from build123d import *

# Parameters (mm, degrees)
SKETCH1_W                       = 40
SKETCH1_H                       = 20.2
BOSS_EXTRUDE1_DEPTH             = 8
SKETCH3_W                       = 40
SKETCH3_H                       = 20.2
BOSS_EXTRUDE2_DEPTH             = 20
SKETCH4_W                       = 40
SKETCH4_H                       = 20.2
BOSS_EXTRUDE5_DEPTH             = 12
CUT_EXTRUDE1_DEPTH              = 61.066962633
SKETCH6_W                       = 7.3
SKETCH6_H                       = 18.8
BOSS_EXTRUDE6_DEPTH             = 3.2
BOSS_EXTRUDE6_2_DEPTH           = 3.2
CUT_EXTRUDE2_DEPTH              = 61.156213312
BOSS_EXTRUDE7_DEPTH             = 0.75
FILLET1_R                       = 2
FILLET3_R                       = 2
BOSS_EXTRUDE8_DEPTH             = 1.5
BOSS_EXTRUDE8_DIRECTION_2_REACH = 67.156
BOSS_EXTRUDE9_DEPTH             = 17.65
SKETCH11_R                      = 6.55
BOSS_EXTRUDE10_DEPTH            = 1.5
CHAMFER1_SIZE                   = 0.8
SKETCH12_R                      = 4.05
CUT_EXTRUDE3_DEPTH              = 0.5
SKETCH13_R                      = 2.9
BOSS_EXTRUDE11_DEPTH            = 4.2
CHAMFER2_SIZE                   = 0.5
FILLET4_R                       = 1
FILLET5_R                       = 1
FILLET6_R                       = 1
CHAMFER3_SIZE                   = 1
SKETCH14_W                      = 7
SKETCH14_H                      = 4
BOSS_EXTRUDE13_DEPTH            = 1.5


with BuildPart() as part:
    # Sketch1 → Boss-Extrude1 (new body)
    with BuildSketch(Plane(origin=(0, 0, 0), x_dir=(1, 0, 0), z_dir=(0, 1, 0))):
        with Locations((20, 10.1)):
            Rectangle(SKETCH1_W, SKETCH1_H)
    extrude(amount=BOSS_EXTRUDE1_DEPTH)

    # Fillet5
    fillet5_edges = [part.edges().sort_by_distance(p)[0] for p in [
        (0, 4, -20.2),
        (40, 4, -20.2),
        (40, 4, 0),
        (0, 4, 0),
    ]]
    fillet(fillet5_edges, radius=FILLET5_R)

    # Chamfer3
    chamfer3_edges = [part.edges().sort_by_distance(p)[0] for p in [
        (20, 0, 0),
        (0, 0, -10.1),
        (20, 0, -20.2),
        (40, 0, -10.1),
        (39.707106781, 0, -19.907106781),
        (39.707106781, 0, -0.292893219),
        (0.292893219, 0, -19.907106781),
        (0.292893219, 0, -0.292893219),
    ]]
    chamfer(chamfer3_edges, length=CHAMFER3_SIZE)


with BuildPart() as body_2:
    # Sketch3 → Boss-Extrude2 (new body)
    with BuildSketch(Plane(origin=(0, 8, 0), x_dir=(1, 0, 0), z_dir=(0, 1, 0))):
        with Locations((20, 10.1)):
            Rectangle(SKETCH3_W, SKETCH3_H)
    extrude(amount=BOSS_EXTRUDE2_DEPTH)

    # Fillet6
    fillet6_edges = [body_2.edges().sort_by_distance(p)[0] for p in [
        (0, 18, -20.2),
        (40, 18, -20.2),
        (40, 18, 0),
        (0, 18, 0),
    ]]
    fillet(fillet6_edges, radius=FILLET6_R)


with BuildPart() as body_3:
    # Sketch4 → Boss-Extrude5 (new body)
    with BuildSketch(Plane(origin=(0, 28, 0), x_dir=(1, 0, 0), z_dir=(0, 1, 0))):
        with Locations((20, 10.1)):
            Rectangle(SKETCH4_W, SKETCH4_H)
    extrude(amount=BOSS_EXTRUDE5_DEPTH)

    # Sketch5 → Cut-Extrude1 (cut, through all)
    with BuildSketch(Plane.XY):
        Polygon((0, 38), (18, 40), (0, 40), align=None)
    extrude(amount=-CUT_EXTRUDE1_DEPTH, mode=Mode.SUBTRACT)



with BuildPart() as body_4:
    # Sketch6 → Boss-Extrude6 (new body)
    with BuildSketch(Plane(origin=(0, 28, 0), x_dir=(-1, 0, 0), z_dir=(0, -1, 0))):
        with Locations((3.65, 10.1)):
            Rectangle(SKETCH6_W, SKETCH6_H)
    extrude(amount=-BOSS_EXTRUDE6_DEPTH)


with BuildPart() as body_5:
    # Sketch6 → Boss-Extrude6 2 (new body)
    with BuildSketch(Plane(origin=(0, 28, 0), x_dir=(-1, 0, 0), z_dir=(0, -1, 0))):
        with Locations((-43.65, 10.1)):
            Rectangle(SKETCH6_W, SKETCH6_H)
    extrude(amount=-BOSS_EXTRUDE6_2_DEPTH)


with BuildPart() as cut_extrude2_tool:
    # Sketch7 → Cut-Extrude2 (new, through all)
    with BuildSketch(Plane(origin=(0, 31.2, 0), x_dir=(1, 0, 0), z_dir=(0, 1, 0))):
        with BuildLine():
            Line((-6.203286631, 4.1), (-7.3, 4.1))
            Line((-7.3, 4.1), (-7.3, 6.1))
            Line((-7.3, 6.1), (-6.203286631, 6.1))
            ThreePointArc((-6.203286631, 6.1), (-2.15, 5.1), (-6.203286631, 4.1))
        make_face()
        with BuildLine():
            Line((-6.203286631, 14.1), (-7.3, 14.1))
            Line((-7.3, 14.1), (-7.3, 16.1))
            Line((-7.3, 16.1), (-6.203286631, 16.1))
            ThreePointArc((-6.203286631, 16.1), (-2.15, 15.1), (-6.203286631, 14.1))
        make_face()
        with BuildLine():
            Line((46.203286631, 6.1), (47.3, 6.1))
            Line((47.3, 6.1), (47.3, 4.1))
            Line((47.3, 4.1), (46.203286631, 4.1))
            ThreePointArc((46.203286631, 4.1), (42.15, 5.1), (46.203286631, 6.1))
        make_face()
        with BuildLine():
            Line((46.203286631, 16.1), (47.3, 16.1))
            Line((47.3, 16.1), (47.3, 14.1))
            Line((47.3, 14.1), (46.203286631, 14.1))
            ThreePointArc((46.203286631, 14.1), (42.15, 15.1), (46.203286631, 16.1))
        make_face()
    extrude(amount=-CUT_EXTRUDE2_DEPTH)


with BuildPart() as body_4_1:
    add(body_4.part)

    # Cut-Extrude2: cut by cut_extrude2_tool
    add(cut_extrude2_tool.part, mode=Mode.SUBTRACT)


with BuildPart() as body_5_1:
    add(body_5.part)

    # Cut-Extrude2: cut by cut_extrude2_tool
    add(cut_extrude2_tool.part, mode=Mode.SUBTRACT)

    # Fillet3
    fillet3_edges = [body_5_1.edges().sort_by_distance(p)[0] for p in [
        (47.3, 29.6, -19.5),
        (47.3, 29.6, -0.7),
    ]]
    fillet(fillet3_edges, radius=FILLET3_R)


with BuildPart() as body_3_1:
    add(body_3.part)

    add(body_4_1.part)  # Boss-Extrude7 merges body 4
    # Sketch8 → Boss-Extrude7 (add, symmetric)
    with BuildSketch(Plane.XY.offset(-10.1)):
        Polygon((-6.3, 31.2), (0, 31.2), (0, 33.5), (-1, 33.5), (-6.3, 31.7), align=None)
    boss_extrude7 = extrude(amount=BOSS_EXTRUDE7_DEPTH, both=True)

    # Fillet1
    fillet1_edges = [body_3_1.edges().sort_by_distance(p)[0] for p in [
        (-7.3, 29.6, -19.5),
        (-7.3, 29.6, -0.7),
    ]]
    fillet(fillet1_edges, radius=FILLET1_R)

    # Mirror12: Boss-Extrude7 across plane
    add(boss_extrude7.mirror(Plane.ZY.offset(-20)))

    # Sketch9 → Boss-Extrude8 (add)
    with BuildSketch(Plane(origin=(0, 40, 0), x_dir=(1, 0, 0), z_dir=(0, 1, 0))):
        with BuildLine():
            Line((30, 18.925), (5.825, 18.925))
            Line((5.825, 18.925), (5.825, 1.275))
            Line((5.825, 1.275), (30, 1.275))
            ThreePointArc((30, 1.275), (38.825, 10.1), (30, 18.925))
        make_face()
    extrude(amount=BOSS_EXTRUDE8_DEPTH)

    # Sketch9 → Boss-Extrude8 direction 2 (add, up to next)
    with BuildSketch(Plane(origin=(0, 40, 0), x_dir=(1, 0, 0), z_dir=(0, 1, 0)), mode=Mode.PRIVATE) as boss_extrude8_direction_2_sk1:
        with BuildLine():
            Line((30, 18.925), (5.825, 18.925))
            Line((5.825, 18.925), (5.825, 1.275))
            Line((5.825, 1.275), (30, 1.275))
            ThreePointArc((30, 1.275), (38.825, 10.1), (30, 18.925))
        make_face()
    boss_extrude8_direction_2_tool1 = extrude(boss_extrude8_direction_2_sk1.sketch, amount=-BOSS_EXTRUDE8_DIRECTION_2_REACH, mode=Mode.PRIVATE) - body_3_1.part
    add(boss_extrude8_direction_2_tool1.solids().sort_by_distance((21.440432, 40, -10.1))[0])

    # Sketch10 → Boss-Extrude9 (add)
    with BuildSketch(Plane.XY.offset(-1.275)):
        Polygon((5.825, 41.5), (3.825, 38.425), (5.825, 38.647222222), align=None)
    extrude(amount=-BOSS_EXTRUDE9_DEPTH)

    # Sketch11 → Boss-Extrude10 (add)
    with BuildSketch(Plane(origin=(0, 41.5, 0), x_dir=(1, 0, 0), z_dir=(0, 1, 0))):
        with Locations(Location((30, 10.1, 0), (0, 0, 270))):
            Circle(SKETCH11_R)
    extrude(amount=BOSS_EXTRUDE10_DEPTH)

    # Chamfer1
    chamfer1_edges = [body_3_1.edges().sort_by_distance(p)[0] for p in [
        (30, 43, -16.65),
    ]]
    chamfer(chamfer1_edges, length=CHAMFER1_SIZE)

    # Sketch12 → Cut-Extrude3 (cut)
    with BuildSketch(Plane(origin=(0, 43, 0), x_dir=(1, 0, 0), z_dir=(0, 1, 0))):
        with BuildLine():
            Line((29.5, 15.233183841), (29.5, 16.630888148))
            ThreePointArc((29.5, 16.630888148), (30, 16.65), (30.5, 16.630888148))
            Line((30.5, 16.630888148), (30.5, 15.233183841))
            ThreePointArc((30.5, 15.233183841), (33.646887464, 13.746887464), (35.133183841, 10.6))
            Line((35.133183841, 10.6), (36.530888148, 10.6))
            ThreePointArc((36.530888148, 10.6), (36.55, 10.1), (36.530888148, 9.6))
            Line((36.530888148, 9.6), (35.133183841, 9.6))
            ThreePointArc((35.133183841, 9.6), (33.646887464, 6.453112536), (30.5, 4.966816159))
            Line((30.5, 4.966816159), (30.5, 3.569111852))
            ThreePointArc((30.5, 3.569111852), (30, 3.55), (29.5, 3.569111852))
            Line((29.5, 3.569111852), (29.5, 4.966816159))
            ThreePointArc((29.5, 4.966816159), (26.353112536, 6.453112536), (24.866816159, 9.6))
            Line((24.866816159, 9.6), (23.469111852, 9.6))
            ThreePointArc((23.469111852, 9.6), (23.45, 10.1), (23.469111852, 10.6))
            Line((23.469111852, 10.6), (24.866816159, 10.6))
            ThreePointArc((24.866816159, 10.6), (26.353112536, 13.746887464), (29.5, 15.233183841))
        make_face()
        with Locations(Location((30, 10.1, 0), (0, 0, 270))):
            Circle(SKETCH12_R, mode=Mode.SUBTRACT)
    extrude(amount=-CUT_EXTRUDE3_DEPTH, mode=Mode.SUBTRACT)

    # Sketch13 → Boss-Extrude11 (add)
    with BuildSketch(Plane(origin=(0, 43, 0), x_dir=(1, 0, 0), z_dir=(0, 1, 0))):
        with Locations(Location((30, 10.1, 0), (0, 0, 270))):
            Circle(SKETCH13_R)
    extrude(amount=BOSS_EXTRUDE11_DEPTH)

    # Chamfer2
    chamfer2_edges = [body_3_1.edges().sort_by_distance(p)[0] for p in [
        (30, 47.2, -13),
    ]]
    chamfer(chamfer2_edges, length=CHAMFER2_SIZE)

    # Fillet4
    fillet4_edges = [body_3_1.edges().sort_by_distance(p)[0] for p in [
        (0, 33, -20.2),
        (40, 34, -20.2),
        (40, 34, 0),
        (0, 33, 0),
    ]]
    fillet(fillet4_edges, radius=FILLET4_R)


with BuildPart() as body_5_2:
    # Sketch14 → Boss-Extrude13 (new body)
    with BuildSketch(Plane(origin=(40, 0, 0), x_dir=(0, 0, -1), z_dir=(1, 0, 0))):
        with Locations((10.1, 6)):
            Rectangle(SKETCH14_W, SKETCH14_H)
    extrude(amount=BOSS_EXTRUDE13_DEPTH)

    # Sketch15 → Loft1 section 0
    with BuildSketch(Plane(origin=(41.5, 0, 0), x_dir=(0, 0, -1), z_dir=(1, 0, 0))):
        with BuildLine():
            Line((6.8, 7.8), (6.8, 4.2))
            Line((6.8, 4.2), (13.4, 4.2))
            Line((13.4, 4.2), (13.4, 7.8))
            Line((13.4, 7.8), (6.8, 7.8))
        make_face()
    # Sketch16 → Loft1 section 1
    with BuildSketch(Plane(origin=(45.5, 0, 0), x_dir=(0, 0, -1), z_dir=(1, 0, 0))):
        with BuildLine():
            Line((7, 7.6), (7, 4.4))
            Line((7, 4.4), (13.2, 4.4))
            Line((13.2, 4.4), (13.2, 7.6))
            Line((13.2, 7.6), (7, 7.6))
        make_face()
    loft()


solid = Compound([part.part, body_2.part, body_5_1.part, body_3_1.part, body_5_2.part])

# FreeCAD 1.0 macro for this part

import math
import FreeCAD as App
import Part
import Sketcher


def edges_at(feature, points):
    """Names of the edges that pass closest to the given points."""
    edges = feature.Shape.Edges
    near = lambda p: min(range(len(edges)), key=lambda i: edges[i].distToShape(Part.Vertex(*p))[0])
    return sorted({f"Edge{near(p) + 1}" for p in points})


def add_polygon(sketch, points):
    """Adds a closed chain of lines whose ends are joined by coincident constraints."""
    first, n = sketch.GeometryCount, len(points)
    for a, b in zip(points, points[1:] + points[:1]):
        sketch.addGeometry(Part.LineSegment(App.Vector(*a, 0), App.Vector(*b, 0)), False)
    for i in range(n):
        sketch.addConstraint(Sketcher.Constraint("Coincident", first + i, 2, first + (i + 1) % n, 1))

doc = App.newDocument("Part")
body = doc.addObject("PartDesign::Body", "Body")

sketch1 = body.newObject("Sketcher::SketchObject", "Sketch")
sketch1.AttachmentSupport = (doc.getObject("XZ_Plane"), [""])
sketch1.MapMode = "FlatFace"
add_polygon(sketch1, [(0, -20), (0, 0), (40, 0), (40, -20)])
sketch1.addConstraint([
    Sketcher.Constraint("Vertical", 0),
    Sketcher.Constraint("Horizontal", 1),
    Sketcher.Constraint("Vertical", 2),
    Sketcher.Constraint("Horizontal", 3),
    Sketcher.Constraint("Coincident", 0, 2, -1, 1),
    Sketcher.Constraint("DistanceX", 1, 1, 1, 2, 40.0),
    Sketcher.Constraint("DistanceY", 0, 1, 0, 2, 20.2),
])
pad1 = body.newObject("PartDesign::Pad", "Pad")
pad1.Profile = sketch1
pad1.Length = 8
pad1.Reversed = True
doc.recompute()

fillet = body.newObject("PartDesign::Fillet", "Fillet")
fillet.Base = (pad1, edges_at(pad1, [
    (0, 4, -20.2),
    (40, 4, -20.2),
    (40, 4, 0),
    (0, 4, 0),
]))
fillet.Radius = 1
doc.recompute()

chamfer = body.newObject("PartDesign::Chamfer", "Chamfer")
chamfer.Base = (fillet, edges_at(fillet, [
    (20, 0, 0),
    (0, 0, -10.1),
    (20, 0, -20.2),
    (40, 0, -10.1),
    (39.707, 0, -19.907),
    (39.707, 0, -0.293),
    (0.293, 0, -19.907),
    (0.293, 0, -0.293),
]))
chamfer.Size = 1
body2 = doc.addObject("PartDesign::Body", "Body001")

sketch2 = body2.newObject("Sketcher::SketchObject", "Sketch001")
sketch2.AttachmentSupport = (doc.getObject("XZ_Plane001"), [""])
sketch2.MapMode = "FlatFace"
sketch2.AttachmentOffset = App.Placement(App.Vector(0, 0, -8), App.Rotation())
add_polygon(sketch2, [(0, -20), (0, 0), (40, 0), (40, -20)])
sketch2.addConstraint([
    Sketcher.Constraint("Vertical", 0),
    Sketcher.Constraint("Horizontal", 1),
    Sketcher.Constraint("Vertical", 2),
    Sketcher.Constraint("Horizontal", 3),
    Sketcher.Constraint("Coincident", 0, 2, -1, 1),
    Sketcher.Constraint("DistanceX", 1, 1, 1, 2, 40.0),
    Sketcher.Constraint("DistanceY", 0, 1, 0, 2, 20.2),
])
pad2 = body2.newObject("PartDesign::Pad", "Pad001")
pad2.Profile = sketch2
pad2.Length = 20
pad2.Reversed = True
doc.recompute()

fillet2 = body2.newObject("PartDesign::Fillet", "Fillet001")
fillet2.Base = (pad2, edges_at(pad2, [
    (0, 18, -20.2),
    (40, 18, -20.2),
    (40, 18, 0),
    (0, 18, 0),
]))
fillet2.Radius = 1
body3 = doc.addObject("PartDesign::Body", "Body002")

sketch3 = body3.newObject("Sketcher::SketchObject", "Sketch002")
sketch3.AttachmentSupport = (doc.getObject("XZ_Plane002"), [""])
sketch3.MapMode = "FlatFace"
sketch3.AttachmentOffset = App.Placement(App.Vector(0, 0, -28), App.Rotation())
add_polygon(sketch3, [(0, -20), (0, 0), (40, 0), (40, -20)])
sketch3.addConstraint([
    Sketcher.Constraint("Vertical", 0),
    Sketcher.Constraint("Horizontal", 1),
    Sketcher.Constraint("Vertical", 2),
    Sketcher.Constraint("Horizontal", 3),
    Sketcher.Constraint("Coincident", 0, 2, -1, 1),
    Sketcher.Constraint("DistanceX", 1, 1, 1, 2, 40.0),
    Sketcher.Constraint("DistanceY", 0, 1, 0, 2, 20.2),
])
pad3 = body3.newObject("PartDesign::Pad", "Pad002")
pad3.Profile = sketch3
pad3.Length = 12
pad3.Reversed = True

sketch4 = body3.newObject("Sketcher::SketchObject", "Sketch003")
sketch4.AttachmentSupport = (doc.getObject("XY_Plane002"), [""])
sketch4.MapMode = "FlatFace"
add_polygon(sketch4, [(0, 38), (18, 40), (0, 40)])
sketch4.addConstraint([
    Sketcher.Constraint("Horizontal", 1),
    Sketcher.Constraint("Vertical", 2),
    Sketcher.Constraint("PointOnObject", 1, 2, -2),
    Sketcher.Constraint("DistanceX", 1, 2, 1, 1, 18.0),
    Sketcher.Constraint("DistanceY", 2, 2, 2, 1, 2.0),
    Sketcher.Constraint("DistanceY", -1, 1, 0, 2, 40.0),
])
pocket1 = body3.newObject("PartDesign::Pocket", "Pocket")
pocket1.Profile = sketch4
pocket1.Type = "ThroughAll"
body4 = doc.addObject("PartDesign::Body", "Body003")

sketch5 = body4.newObject("Sketcher::SketchObject", "Sketch004")
sketch5.AttachmentSupport = (doc.getObject("XZ_Plane003"), [""])
sketch5.MapMode = "FlatFace"
sketch5.AttachmentOffset = App.Placement(App.Vector(0, 0, -28), App.Rotation())
add_polygon(sketch5, [(0, -20), (0, -1), (-7, -1), (-7, -20)])
sketch5.addConstraint([
    Sketcher.Constraint("Vertical", 0),
    Sketcher.Constraint("Horizontal", 1),
    Sketcher.Constraint("Vertical", 2),
    Sketcher.Constraint("Horizontal", 3),
    Sketcher.Constraint("PointOnObject", 0, 2, -2),
    Sketcher.Constraint("DistanceX", 1, 2, 1, 1, 7.3),
    Sketcher.Constraint("DistanceY", 0, 1, 0, 2, 18.8),
    Sketcher.Constraint("DistanceY", 0, 2, -1, 1, 0.7),
])
pad4 = body4.newObject("PartDesign::Pad", "Pad003")
pad4.Profile = sketch5
pad4.Length = 3.2
pad4.Reversed = True
body5 = doc.addObject("PartDesign::Body", "Body004")

sketch6 = body5.newObject("Sketcher::SketchObject", "Sketch005")
sketch6.AttachmentSupport = (doc.getObject("XZ_Plane004"), [""])
sketch6.MapMode = "FlatFace"
sketch6.AttachmentOffset = App.Placement(App.Vector(0, 0, -28), App.Rotation())
add_polygon(sketch6, [(47, -20), (47, -1), (40, -1), (40, -20)])
sketch6.addConstraint([
    Sketcher.Constraint("Vertical", 0),
    Sketcher.Constraint("Horizontal", 1),
    Sketcher.Constraint("Vertical", 2),
    Sketcher.Constraint("Horizontal", 3),
    Sketcher.Constraint("DistanceX", 1, 2, 1, 1, 7.3),
    Sketcher.Constraint("DistanceY", 0, 1, 0, 2, 18.8),
    Sketcher.Constraint("DistanceX", -1, 1, 1, 2, 40.0),
    Sketcher.Constraint("DistanceY", 0, 2, -1, 1, 0.7),
])
pad5 = body5.newObject("PartDesign::Pad", "Pad004")
pad5.Profile = sketch6
pad5.Length = 3.2
pad5.Reversed = True
body6 = doc.addObject("PartDesign::Body", "Body005")
body6.AllowCompound = True

sketch7 = body6.newObject("Sketcher::SketchObject", "Sketch006")
sketch7.AttachmentSupport = (doc.getObject("XZ_Plane005"), [""])
sketch7.MapMode = "FlatFace"
sketch7.AttachmentOffset = App.Placement(App.Vector(0, 0, -31.2), App.Rotation())
sketch7.addGeometry([
    Part.LineSegment(App.Vector(-7.3, -4.1, 0), App.Vector(-6.2, -4.1, 0)),
    Part.ArcOfCircle(Part.Circle(App.Vector(-4.3, -5.1, 0), App.Vector(0, 0, 1), 2.1), math.radians(-152), math.radians(152)),
    Part.LineSegment(App.Vector(-6.2, -6.1, 0), App.Vector(-7.3, -6.1, 0)),
    Part.LineSegment(App.Vector(-7.3, -6.1, 0), App.Vector(-7.3, -4.1, 0)),
    Part.LineSegment(App.Vector(-7.3, -14.1, 0), App.Vector(-6.2, -14.1, 0)),
    Part.ArcOfCircle(Part.Circle(App.Vector(-4.3, -15.1, 0), App.Vector(0, 0, 1), 2.1), math.radians(-152), math.radians(152)),
    Part.LineSegment(App.Vector(-6.2, -16.1, 0), App.Vector(-7.3, -16.1, 0)),
    Part.LineSegment(App.Vector(-7.3, -16.1, 0), App.Vector(-7.3, -14.1, 0)),
    Part.LineSegment(App.Vector(47.3, -6.1, 0), App.Vector(46.2, -6.1, 0)),
    Part.ArcOfCircle(Part.Circle(App.Vector(44.3, -5.1, 0), App.Vector(0, 0, 1), 2.1), math.radians(28), math.radians(332)),
    Part.LineSegment(App.Vector(46.2, -4.1, 0), App.Vector(47.3, -4.1, 0)),
    Part.LineSegment(App.Vector(47.3, -4.1, 0), App.Vector(47.3, -6.1, 0)),
    Part.LineSegment(App.Vector(47.3, -16.1, 0), App.Vector(46.2, -16.1, 0)),
    Part.ArcOfCircle(Part.Circle(App.Vector(44.3, -15.1, 0), App.Vector(0, 0, 1), 2.1), math.radians(28), math.radians(332)),
    Part.LineSegment(App.Vector(46.2, -14.1, 0), App.Vector(47.3, -14.1, 0)),
    Part.LineSegment(App.Vector(47.3, -14.1, 0), App.Vector(47.3, -16.1, 0)),
], False)
sketch7.addConstraint([
    Sketcher.Constraint("Coincident", 0, 2, 1, 2),
    Sketcher.Constraint("Coincident", 1, 1, 2, 1),
    Sketcher.Constraint("Coincident", 2, 2, 3, 1),
    Sketcher.Constraint("Coincident", 3, 2, 0, 1),
    Sketcher.Constraint("Coincident", 4, 2, 5, 2),
    Sketcher.Constraint("Coincident", 5, 1, 6, 1),
    Sketcher.Constraint("Coincident", 6, 2, 7, 1),
    Sketcher.Constraint("Coincident", 7, 2, 4, 1),
    Sketcher.Constraint("Coincident", 8, 2, 9, 2),
    Sketcher.Constraint("Coincident", 9, 1, 10, 1),
    Sketcher.Constraint("Coincident", 10, 2, 11, 1),
    Sketcher.Constraint("Coincident", 11, 2, 8, 1),
    Sketcher.Constraint("Coincident", 12, 2, 13, 2),
    Sketcher.Constraint("Coincident", 13, 1, 14, 1),
    Sketcher.Constraint("Coincident", 14, 2, 15, 1),
    Sketcher.Constraint("Coincident", 15, 2, 12, 1),
    Sketcher.Constraint("Horizontal", 0),
    Sketcher.Constraint("Horizontal", 2),
    Sketcher.Constraint("Vertical", 3),
    Sketcher.Constraint("Horizontal", 4),
    Sketcher.Constraint("Horizontal", 6),
    Sketcher.Constraint("Vertical", 7),
    Sketcher.Constraint("Horizontal", 8),
    Sketcher.Constraint("Horizontal", 10),
    Sketcher.Constraint("Vertical", 11),
    Sketcher.Constraint("Horizontal", 12),
    Sketcher.Constraint("Horizontal", 14),
    Sketcher.Constraint("Vertical", 15),
    Sketcher.Constraint("Equal", 1, 5),
    Sketcher.Constraint("Equal", 5, 9),
    Sketcher.Constraint("Equal", 9, 13),
    Sketcher.Constraint("Horizontal", 1, 3, 9, 3),
    Sketcher.Constraint("Horizontal", 5, 3, 13, 3),
    Sketcher.Constraint("Horizontal", 2, 2, 8, 2),
    Sketcher.Constraint("Horizontal", 3, 2, 9, 1),
    Sketcher.Constraint("Horizontal", 6, 2, 12, 2),
    Sketcher.Constraint("Horizontal", 7, 2, 13, 1),
    Sketcher.Constraint("Vertical", 1, 3, 5, 3),
    Sketcher.Constraint("Vertical", 9, 3, 13, 3),
    Sketcher.Constraint("Vertical", 0, 2, 1, 1),
    Sketcher.Constraint("Vertical", 1, 1, 4, 2),
    Sketcher.Constraint("Vertical", 4, 2, 5, 1),
    Sketcher.Constraint("Vertical", 3, 2, 6, 2),
    Sketcher.Constraint("Vertical", 11, 2, 14, 2),
    Sketcher.Constraint("Equal", 6, 8),
    Sketcher.Constraint("DistanceY", 3, 1, 3, 2, 2.0),
    Sketcher.Constraint("Radius", 1, 2.15),
    Sketcher.Constraint("DistanceY", 5, 3, 1, 3, 10.0),
    Sketcher.Constraint("DistanceX", 2, 2, 1, 3, 3.0),
    Sketcher.Constraint("DistanceX", 1, 3, -1, 1, 4.3),
    Sketcher.Constraint("DistanceY", 1, 3, -1, 1, 5.1),
    Sketcher.Constraint("DistanceX", -1, 1, 9, 3, 44.3),
])
pad6 = body6.newObject("PartDesign::Pad", "Pad005")
pad6.Profile = sketch7
pad6.Length = 61.156213
doc.recompute()

body7 = doc.addObject("PartDesign::Body", "Body006")
body7.BaseFeature = body6
boolean = body4.newObject("PartDesign::Boolean", "Boolean")
boolean.Type = "Cut"
boolean.addObjects([body7])
doc.recompute()

boolean2 = body5.newObject("PartDesign::Boolean", "Boolean001")
boolean2.Type = "Cut"
boolean2.addObjects([body6])
doc.recompute()

fillet3 = body5.newObject("PartDesign::Fillet", "Fillet002")
fillet3.Base = (boolean2, edges_at(boolean2, [(47.3, 29.6, -19.5), (47.3, 29.6, -0.7)]))
fillet3.Radius = 2
doc.recompute()

boolean3 = body3.newObject("PartDesign::Boolean", "Boolean002")
boolean3.Type = "Fuse"
boolean3.addObjects([body4])

sketch8 = body3.newObject("Sketcher::SketchObject", "Sketch007")
sketch8.AttachmentSupport = (doc.getObject("XY_Plane002"), [""])
sketch8.MapMode = "FlatFace"
sketch8.AttachmentOffset = App.Placement(App.Vector(0, 0, -10.1), App.Rotation())
add_polygon(sketch8, [(-6.3, 31.2), (0, 31.2), (0, 33.5), (-1, 33.5), (-6.3, 31.7)])
sketch8.addConstraint([
    Sketcher.Constraint("Horizontal", 0),
    Sketcher.Constraint("Vertical", 1),
    Sketcher.Constraint("Horizontal", 2),
    Sketcher.Constraint("Vertical", 4),
    Sketcher.Constraint("PointOnObject", 0, 2, -2),
    Sketcher.Constraint("DistanceX", 2, 2, 2, 1, 1.0),
    Sketcher.Constraint("DistanceX", 0, 1, 0, 2, 6.3),
    Sketcher.Constraint("DistanceY", 1, 1, 1, 2, 2.3),
    Sketcher.Constraint("DistanceY", 4, 2, 4, 1, 0.5),
    Sketcher.Constraint("DistanceY", -1, 1, 0, 2, 31.2),
])
pad7 = body3.newObject("PartDesign::Pad", "Pad006")
pad7.Profile = sketch8
pad7.Length = 1.5
pad7.Midplane = True
doc.recompute()

fillet4 = body3.newObject("PartDesign::Fillet", "Fillet003")
fillet4.Base = (pad7, edges_at(pad7, [(-7.3, 29.6, -19.5), (-7.3, 29.6, -0.7)]))
fillet4.Radius = 2
doc.recompute()

datumplane = body3.newObject("PartDesign::Plane", "DatumPlane")
datumplane.AttachmentSupport = (doc.getObject("YZ_Plane002"), [""])
datumplane.MapMode = "FlatFace"
datumplane.AttachmentOffset = App.Placement(App.Vector(0, 0, 20), App.Rotation())
mirrored = body3.newObject("PartDesign::Mirrored", "Mirrored")
mirrored.Originals = [pad7]
mirrored.MirrorPlane = (datumplane, [""])
body3.Tip = mirrored

sketch9 = body3.newObject("Sketcher::SketchObject", "Sketch008")
sketch9.AttachmentSupport = (doc.getObject("XZ_Plane002"), [""])
sketch9.MapMode = "FlatFace"
sketch9.AttachmentOffset = App.Placement(App.Vector(0, 0, -40), App.Rotation())
sketch9.addGeometry([
    Part.LineSegment(App.Vector(30, -19, 0), App.Vector(6, -19, 0)),
    Part.LineSegment(App.Vector(6, -19, 0), App.Vector(6, -1, 0)),
    Part.LineSegment(App.Vector(6, -1, 0), App.Vector(30, -1, 0)),
    Part.ArcOfCircle(Part.Circle(App.Vector(30, -10, 0), App.Vector(0, 0, 1), 9), math.radians(-90), math.radians(90)),
], False)
sketch9.addConstraint([
    Sketcher.Constraint("Coincident", 0, 2, 1, 1),
    Sketcher.Constraint("Coincident", 1, 2, 2, 1),
    Sketcher.Constraint("Tangent", 2, 2, 3, 2),
    Sketcher.Constraint("Tangent", 3, 1, 0, 1),
    Sketcher.Constraint("Horizontal", 0),
    Sketcher.Constraint("Vertical", 1),
    Sketcher.Constraint("Horizontal", 2),
    Sketcher.Constraint("DistanceX", -1, 1, 3, 3, 30.0),
    Sketcher.Constraint("Radius", 3, 8.825),
    Sketcher.Constraint("DistanceY", 3, 3, -1, 1, 10.1),
    Sketcher.Constraint("DistanceX", 0, 2, 0, 1, 24.175),
])
pad8 = body3.newObject("PartDesign::Pad", "Pad007")
pad8.Profile = sketch9
pad8.Length = 1.5
pad8.Reversed = True

sketch10 = body3.newObject("Sketcher::SketchObject", "Sketch009")
sketch10.AttachmentSupport = (doc.getObject("XZ_Plane002"), [""])
sketch10.MapMode = "FlatFace"
sketch10.AttachmentOffset = App.Placement(App.Vector(0, 0, -40), App.Rotation())
sketch10.addGeometry([
    Part.LineSegment(App.Vector(30, -19, 0), App.Vector(6, -19, 0)),
    Part.LineSegment(App.Vector(6, -19, 0), App.Vector(6, -1, 0)),
    Part.LineSegment(App.Vector(6, -1, 0), App.Vector(30, -1, 0)),
    Part.ArcOfCircle(Part.Circle(App.Vector(30, -10, 0), App.Vector(0, 0, 1), 9), math.radians(-90), math.radians(90)),
], False)
sketch10.addConstraint([
    Sketcher.Constraint("Coincident", 0, 2, 1, 1),
    Sketcher.Constraint("Coincident", 1, 2, 2, 1),
    Sketcher.Constraint("Tangent", 2, 2, 3, 2),
    Sketcher.Constraint("Tangent", 3, 1, 0, 1),
    Sketcher.Constraint("Horizontal", 0),
    Sketcher.Constraint("Vertical", 1),
    Sketcher.Constraint("Horizontal", 2),
    Sketcher.Constraint("DistanceX", -1, 1, 3, 3, 30.0),
    Sketcher.Constraint("Radius", 3, 8.825),
    Sketcher.Constraint("DistanceY", 3, 3, -1, 1, 10.1),
    Sketcher.Constraint("DistanceX", 0, 2, 0, 1, 24.175),
])
pad9 = body3.newObject("PartDesign::Pad", "Pad008")
pad9.Profile = sketch10
pad9.Type = "UpToFirst"

sketch11 = body3.newObject("Sketcher::SketchObject", "Sketch010")
sketch11.AttachmentSupport = (doc.getObject("XY_Plane002"), [""])
sketch11.MapMode = "FlatFace"
sketch11.AttachmentOffset = App.Placement(App.Vector(0, 0, -1.275), App.Rotation())
add_polygon(sketch11, [(5.8, 41.5), (3.8, 38.4), (5.8, 38.6)])
sketch11.addConstraint([
    Sketcher.Constraint("Vertical", 2),
    Sketcher.Constraint("DistanceX", 0, 2, 1, 2, 2.0),
    Sketcher.Constraint("DistanceY", -1, 1, 2, 2, 41.5),
    Sketcher.Constraint("DistanceX", -1, 1, 0, 2, 3.825),
    Sketcher.Constraint("DistanceY", -1, 1, 0, 2, 38.425),
    Sketcher.Constraint("DistanceY", 2, 1, 2, 2, 2.852778),
])
pad10 = body3.newObject("PartDesign::Pad", "Pad009")
pad10.Profile = sketch11
pad10.Length = 17.65
pad10.Reversed = True

sketch12 = body3.newObject("Sketcher::SketchObject", "Sketch011")
sketch12.AttachmentSupport = (doc.getObject("XZ_Plane002"), [""])
sketch12.MapMode = "FlatFace"
sketch12.AttachmentOffset = App.Placement(App.Vector(0, 0, -41.5), App.Rotation())
sketch12.addGeometry(Part.Circle(App.Vector(30, -10, 0), App.Vector(0, 0, 1), 7), False)
sketch12.addConstraint([
    Sketcher.Constraint("Diameter", 0, 13.1),
    Sketcher.Constraint("DistanceX", -1, 1, 0, 3, 30.0),
    Sketcher.Constraint("DistanceY", 0, 3, -1, 1, 10.1),
])
pad11 = body3.newObject("PartDesign::Pad", "Pad010")
pad11.Profile = sketch12
pad11.Length = 1.5
pad11.Reversed = True
doc.recompute()

chamfer2 = body3.newObject("PartDesign::Chamfer", "Chamfer001")
chamfer2.Base = (pad11, edges_at(pad11, [(30, 43, -16.65)]))
chamfer2.Size = 0.8

sketch13 = body3.newObject("Sketcher::SketchObject", "Sketch012")
sketch13.AttachmentSupport = (doc.getObject("XZ_Plane002"), [""])
sketch13.MapMode = "FlatFace"
sketch13.AttachmentOffset = App.Placement(App.Vector(0, 0, -43), App.Rotation())
sketch13.addGeometry([
    Part.LineSegment(App.Vector(29.5, -16.6, 0), App.Vector(29.5, -15.2, 0)),
    Part.ArcOfCircle(Part.Circle(App.Vector(30, -10.1, 0), App.Vector(0, 0, 1), 5.2), math.radians(-174), math.radians(-96)),
    Part.LineSegment(App.Vector(24.9, -10.6, 0), App.Vector(23.5, -10.6, 0)),
    Part.ArcOfCircle(Part.Circle(App.Vector(30, -10.1, 0), App.Vector(0, 0, 1), 6.6), math.radians(175.62), math.radians(184.38)),
    Part.LineSegment(App.Vector(23.5, -9.6, 0), App.Vector(24.9, -9.6, 0)),
    Part.ArcOfCircle(Part.Circle(App.Vector(30, -10.1, 0), App.Vector(0, 0, 1), 5.2), math.radians(96), math.radians(174)),
    Part.LineSegment(App.Vector(29.5, -5, 0), App.Vector(29.5, -3.6, 0)),
    Part.ArcOfCircle(Part.Circle(App.Vector(30, -10.1, 0), App.Vector(0, 0, 1), 6.6), math.radians(85.62), math.radians(94.38)),
    Part.LineSegment(App.Vector(30.5, -3.6, 0), App.Vector(30.5, -5, 0)),
    Part.ArcOfCircle(Part.Circle(App.Vector(30, -10.1, 0), App.Vector(0, 0, 1), 5.2), math.radians(6), math.radians(84)),
    Part.LineSegment(App.Vector(35.1, -9.6, 0), App.Vector(36.5, -9.6, 0)),
    Part.ArcOfCircle(Part.Circle(App.Vector(30, -10.1, 0), App.Vector(0, 0, 1), 6.6), math.radians(-4.38), math.radians(4.38)),
    Part.LineSegment(App.Vector(36.5, -10.6, 0), App.Vector(35.1, -10.6, 0)),
    Part.ArcOfCircle(Part.Circle(App.Vector(30, -10.1, 0), App.Vector(0, 0, 1), 5.2), math.radians(-84), math.radians(-6)),
    Part.LineSegment(App.Vector(30.5, -15.2, 0), App.Vector(30.5, -16.6, 0)),
    Part.ArcOfCircle(Part.Circle(App.Vector(30, -10.1, 0), App.Vector(0, 0, 1), 6.6), math.radians(-94.38), math.radians(-85.62)),
    Part.Circle(App.Vector(30, -10.1, 0), App.Vector(0, 0, 1), 4),
], False)
sketch13.addConstraint([
    Sketcher.Constraint("Coincident", 0, 2, 1, 2),
    Sketcher.Constraint("Coincident", 1, 1, 2, 1),
    Sketcher.Constraint("Coincident", 2, 2, 3, 2),
    Sketcher.Constraint("Coincident", 3, 1, 4, 1),
    Sketcher.Constraint("Coincident", 4, 2, 5, 2),
    Sketcher.Constraint("Coincident", 5, 1, 6, 1),
    Sketcher.Constraint("Coincident", 6, 2, 7, 2),
    Sketcher.Constraint("Coincident", 7, 1, 8, 1),
    Sketcher.Constraint("Coincident", 8, 2, 9, 2),
    Sketcher.Constraint("Coincident", 9, 1, 10, 1),
    Sketcher.Constraint("Coincident", 10, 2, 11, 2),
    Sketcher.Constraint("Coincident", 11, 1, 12, 1),
    Sketcher.Constraint("Coincident", 12, 2, 13, 2),
    Sketcher.Constraint("Coincident", 13, 1, 14, 1),
    Sketcher.Constraint("Coincident", 14, 2, 15, 2),
    Sketcher.Constraint("Coincident", 15, 1, 0, 1),
    Sketcher.Constraint("Vertical", 0),
    Sketcher.Constraint("Horizontal", 2),
    Sketcher.Constraint("Horizontal", 4),
    Sketcher.Constraint("Vertical", 6),
    Sketcher.Constraint("Vertical", 8),
    Sketcher.Constraint("Horizontal", 10),
    Sketcher.Constraint("Horizontal", 12),
    Sketcher.Constraint("Vertical", 14),
    Sketcher.Constraint("Coincident", 3, 3, 1, 3),
    Sketcher.Constraint("Coincident", 5, 3, 1, 3),
    Sketcher.Constraint("Coincident", 7, 3, 1, 3),
    Sketcher.Constraint("Coincident", 9, 3, 1, 3),
    Sketcher.Constraint("Coincident", 11, 3, 1, 3),
    Sketcher.Constraint("Coincident", 13, 3, 1, 3),
    Sketcher.Constraint("Coincident", 15, 3, 1, 3),
    Sketcher.Constraint("Coincident", 16, 3, 1, 3),
    Sketcher.Constraint("Equal", 1, 5),
    Sketcher.Constraint("Equal", 3, 7),
    Sketcher.Constraint("Equal", 5, 9),
    Sketcher.Constraint("Equal", 7, 11),
    Sketcher.Constraint("Equal", 9, 13),
    Sketcher.Constraint("Equal", 11, 15),
    Sketcher.Constraint("Horizontal", 6, 2, 7, 1),
    Sketcher.Constraint("Horizontal", 4, 2, 9, 1),
    Sketcher.Constraint("Horizontal", 2, 2, 11, 1),
    Sketcher.Constraint("Horizontal", 0, 2, 13, 1),
    Sketcher.Constraint("Vertical", 2, 2, 3, 1),
    Sketcher.Constraint("Vertical", 0, 2, 5, 1),
    Sketcher.Constraint("Equal", 12, 0),
    Sketcher.Constraint("Diameter", 16, 8.1),
    Sketcher.Constraint("Radius", 3, 6.55),
    Sketcher.Constraint("DistanceX", -1, 1, 1, 3, 30.0),
    Sketcher.Constraint("DistanceY", 2, 2, 3, 1, 1.0),
    Sketcher.Constraint("DistanceY", 1, 3, -1, 1, 10.1),
    Sketcher.Constraint("Radius", 1, 5.157478),
])
pocket2 = body3.newObject("PartDesign::Pocket", "Pocket001")
pocket2.Profile = sketch13
pocket2.Length = 0.5
pocket2.Reversed = True

sketch14 = body3.newObject("Sketcher::SketchObject", "Sketch013")
sketch14.AttachmentSupport = (doc.getObject("XZ_Plane002"), [""])
sketch14.MapMode = "FlatFace"
sketch14.AttachmentOffset = App.Placement(App.Vector(0, 0, -43), App.Rotation())
sketch14.addGeometry(Part.Circle(App.Vector(30, -10.1, 0), App.Vector(0, 0, 1), 2.9), False)
sketch14.addConstraint([
    Sketcher.Constraint("Diameter", 0, 5.8),
    Sketcher.Constraint("DistanceX", -1, 1, 0, 3, 30.0),
    Sketcher.Constraint("DistanceY", 0, 3, -1, 1, 10.1),
])
pad12 = body3.newObject("PartDesign::Pad", "Pad011")
pad12.Profile = sketch14
pad12.Length = 4.2
pad12.Reversed = True
doc.recompute()

chamfer3 = body3.newObject("PartDesign::Chamfer", "Chamfer002")
chamfer3.Base = (pad12, edges_at(pad12, [(30, 47.2, -13)]))
chamfer3.Size = 0.5
doc.recompute()

fillet5 = body3.newObject("PartDesign::Fillet", "Fillet004")
fillet5.Base = (chamfer3, edges_at(chamfer3, [
    (0, 33, -20.2),
    (40, 34, -20.2),
    (40, 34, 0),
    (0, 33, 0),
]))
fillet5.Radius = 1
body8 = doc.addObject("PartDesign::Body", "Body007")

sketch15 = body8.newObject("Sketcher::SketchObject", "Sketch014")
sketch15.AttachmentSupport = (doc.getObject("YZ_Plane007"), [""])
sketch15.MapMode = "FlatFace"
sketch15.AttachmentOffset = App.Placement(App.Vector(0, 0, 40), App.Rotation())
add_polygon(sketch15, [(8, -6.6), (4, -6.6), (4, -13.6), (8, -13.6)])
sketch15.addConstraint([
    Sketcher.Constraint("Horizontal", 0),
    Sketcher.Constraint("Vertical", 1),
    Sketcher.Constraint("Horizontal", 2),
    Sketcher.Constraint("Vertical", 3),
    Sketcher.Constraint("DistanceX", 0, 2, 0, 1, 4.0),
    Sketcher.Constraint("DistanceY", 1, 2, 1, 1, 7.0),
    Sketcher.Constraint("DistanceX", -1, 1, 0, 2, 4.0),
    Sketcher.Constraint("DistanceY", 0, 2, -1, 1, 6.6),
])
pad13 = body8.newObject("PartDesign::Pad", "Pad012")
pad13.Profile = sketch15
pad13.Length = 1.5

sketch16 = body8.newObject("Sketcher::SketchObject", "Sketch015")
sketch16.AttachmentSupport = (doc.getObject("YZ_Plane007"), [""])
sketch16.MapMode = "FlatFace"
sketch16.AttachmentOffset = App.Placement(App.Vector(0, 0, 41.5), App.Rotation())
add_polygon(sketch16, [(7.8, -6.8), (4.2, -6.8), (4.2, -13.4), (7.8, -13.4)])
sketch16.addConstraint([
    Sketcher.Constraint("Horizontal", 0),
    Sketcher.Constraint("Vertical", 1),
    Sketcher.Constraint("Horizontal", 2),
    Sketcher.Constraint("Vertical", 3),
    Sketcher.Constraint("DistanceX", 0, 2, 0, 1, 3.6),
    Sketcher.Constraint("DistanceY", 1, 2, 1, 1, 6.6),
    Sketcher.Constraint("DistanceX", -1, 1, 0, 2, 4.2),
    Sketcher.Constraint("DistanceY", 0, 2, -1, 1, 6.8),
])

sketch17 = body8.newObject("Sketcher::SketchObject", "Sketch016")
sketch17.AttachmentSupport = (doc.getObject("YZ_Plane007"), [""])
sketch17.MapMode = "FlatFace"
sketch17.AttachmentOffset = App.Placement(App.Vector(0, 0, 45.5), App.Rotation())
add_polygon(sketch17, [(7.6, -7), (4.4, -7), (4.4, -13.2), (7.6, -13.2)])
sketch17.addConstraint([
    Sketcher.Constraint("Horizontal", 0),
    Sketcher.Constraint("Vertical", 1),
    Sketcher.Constraint("Horizontal", 2),
    Sketcher.Constraint("Vertical", 3),
    Sketcher.Constraint("DistanceX", 0, 2, 0, 1, 3.2),
    Sketcher.Constraint("DistanceY", 1, 2, 1, 1, 6.2),
    Sketcher.Constraint("DistanceY", 0, 2, -1, 1, 7.0),
    Sketcher.Constraint("DistanceX", -1, 1, 0, 2, 4.4),
])

additiveloft = body8.newObject("PartDesign::AdditiveLoft", "AdditiveLoft")
additiveloft.Profile = sketch16
additiveloft.Sections = [sketch17]

doc.recompute()
